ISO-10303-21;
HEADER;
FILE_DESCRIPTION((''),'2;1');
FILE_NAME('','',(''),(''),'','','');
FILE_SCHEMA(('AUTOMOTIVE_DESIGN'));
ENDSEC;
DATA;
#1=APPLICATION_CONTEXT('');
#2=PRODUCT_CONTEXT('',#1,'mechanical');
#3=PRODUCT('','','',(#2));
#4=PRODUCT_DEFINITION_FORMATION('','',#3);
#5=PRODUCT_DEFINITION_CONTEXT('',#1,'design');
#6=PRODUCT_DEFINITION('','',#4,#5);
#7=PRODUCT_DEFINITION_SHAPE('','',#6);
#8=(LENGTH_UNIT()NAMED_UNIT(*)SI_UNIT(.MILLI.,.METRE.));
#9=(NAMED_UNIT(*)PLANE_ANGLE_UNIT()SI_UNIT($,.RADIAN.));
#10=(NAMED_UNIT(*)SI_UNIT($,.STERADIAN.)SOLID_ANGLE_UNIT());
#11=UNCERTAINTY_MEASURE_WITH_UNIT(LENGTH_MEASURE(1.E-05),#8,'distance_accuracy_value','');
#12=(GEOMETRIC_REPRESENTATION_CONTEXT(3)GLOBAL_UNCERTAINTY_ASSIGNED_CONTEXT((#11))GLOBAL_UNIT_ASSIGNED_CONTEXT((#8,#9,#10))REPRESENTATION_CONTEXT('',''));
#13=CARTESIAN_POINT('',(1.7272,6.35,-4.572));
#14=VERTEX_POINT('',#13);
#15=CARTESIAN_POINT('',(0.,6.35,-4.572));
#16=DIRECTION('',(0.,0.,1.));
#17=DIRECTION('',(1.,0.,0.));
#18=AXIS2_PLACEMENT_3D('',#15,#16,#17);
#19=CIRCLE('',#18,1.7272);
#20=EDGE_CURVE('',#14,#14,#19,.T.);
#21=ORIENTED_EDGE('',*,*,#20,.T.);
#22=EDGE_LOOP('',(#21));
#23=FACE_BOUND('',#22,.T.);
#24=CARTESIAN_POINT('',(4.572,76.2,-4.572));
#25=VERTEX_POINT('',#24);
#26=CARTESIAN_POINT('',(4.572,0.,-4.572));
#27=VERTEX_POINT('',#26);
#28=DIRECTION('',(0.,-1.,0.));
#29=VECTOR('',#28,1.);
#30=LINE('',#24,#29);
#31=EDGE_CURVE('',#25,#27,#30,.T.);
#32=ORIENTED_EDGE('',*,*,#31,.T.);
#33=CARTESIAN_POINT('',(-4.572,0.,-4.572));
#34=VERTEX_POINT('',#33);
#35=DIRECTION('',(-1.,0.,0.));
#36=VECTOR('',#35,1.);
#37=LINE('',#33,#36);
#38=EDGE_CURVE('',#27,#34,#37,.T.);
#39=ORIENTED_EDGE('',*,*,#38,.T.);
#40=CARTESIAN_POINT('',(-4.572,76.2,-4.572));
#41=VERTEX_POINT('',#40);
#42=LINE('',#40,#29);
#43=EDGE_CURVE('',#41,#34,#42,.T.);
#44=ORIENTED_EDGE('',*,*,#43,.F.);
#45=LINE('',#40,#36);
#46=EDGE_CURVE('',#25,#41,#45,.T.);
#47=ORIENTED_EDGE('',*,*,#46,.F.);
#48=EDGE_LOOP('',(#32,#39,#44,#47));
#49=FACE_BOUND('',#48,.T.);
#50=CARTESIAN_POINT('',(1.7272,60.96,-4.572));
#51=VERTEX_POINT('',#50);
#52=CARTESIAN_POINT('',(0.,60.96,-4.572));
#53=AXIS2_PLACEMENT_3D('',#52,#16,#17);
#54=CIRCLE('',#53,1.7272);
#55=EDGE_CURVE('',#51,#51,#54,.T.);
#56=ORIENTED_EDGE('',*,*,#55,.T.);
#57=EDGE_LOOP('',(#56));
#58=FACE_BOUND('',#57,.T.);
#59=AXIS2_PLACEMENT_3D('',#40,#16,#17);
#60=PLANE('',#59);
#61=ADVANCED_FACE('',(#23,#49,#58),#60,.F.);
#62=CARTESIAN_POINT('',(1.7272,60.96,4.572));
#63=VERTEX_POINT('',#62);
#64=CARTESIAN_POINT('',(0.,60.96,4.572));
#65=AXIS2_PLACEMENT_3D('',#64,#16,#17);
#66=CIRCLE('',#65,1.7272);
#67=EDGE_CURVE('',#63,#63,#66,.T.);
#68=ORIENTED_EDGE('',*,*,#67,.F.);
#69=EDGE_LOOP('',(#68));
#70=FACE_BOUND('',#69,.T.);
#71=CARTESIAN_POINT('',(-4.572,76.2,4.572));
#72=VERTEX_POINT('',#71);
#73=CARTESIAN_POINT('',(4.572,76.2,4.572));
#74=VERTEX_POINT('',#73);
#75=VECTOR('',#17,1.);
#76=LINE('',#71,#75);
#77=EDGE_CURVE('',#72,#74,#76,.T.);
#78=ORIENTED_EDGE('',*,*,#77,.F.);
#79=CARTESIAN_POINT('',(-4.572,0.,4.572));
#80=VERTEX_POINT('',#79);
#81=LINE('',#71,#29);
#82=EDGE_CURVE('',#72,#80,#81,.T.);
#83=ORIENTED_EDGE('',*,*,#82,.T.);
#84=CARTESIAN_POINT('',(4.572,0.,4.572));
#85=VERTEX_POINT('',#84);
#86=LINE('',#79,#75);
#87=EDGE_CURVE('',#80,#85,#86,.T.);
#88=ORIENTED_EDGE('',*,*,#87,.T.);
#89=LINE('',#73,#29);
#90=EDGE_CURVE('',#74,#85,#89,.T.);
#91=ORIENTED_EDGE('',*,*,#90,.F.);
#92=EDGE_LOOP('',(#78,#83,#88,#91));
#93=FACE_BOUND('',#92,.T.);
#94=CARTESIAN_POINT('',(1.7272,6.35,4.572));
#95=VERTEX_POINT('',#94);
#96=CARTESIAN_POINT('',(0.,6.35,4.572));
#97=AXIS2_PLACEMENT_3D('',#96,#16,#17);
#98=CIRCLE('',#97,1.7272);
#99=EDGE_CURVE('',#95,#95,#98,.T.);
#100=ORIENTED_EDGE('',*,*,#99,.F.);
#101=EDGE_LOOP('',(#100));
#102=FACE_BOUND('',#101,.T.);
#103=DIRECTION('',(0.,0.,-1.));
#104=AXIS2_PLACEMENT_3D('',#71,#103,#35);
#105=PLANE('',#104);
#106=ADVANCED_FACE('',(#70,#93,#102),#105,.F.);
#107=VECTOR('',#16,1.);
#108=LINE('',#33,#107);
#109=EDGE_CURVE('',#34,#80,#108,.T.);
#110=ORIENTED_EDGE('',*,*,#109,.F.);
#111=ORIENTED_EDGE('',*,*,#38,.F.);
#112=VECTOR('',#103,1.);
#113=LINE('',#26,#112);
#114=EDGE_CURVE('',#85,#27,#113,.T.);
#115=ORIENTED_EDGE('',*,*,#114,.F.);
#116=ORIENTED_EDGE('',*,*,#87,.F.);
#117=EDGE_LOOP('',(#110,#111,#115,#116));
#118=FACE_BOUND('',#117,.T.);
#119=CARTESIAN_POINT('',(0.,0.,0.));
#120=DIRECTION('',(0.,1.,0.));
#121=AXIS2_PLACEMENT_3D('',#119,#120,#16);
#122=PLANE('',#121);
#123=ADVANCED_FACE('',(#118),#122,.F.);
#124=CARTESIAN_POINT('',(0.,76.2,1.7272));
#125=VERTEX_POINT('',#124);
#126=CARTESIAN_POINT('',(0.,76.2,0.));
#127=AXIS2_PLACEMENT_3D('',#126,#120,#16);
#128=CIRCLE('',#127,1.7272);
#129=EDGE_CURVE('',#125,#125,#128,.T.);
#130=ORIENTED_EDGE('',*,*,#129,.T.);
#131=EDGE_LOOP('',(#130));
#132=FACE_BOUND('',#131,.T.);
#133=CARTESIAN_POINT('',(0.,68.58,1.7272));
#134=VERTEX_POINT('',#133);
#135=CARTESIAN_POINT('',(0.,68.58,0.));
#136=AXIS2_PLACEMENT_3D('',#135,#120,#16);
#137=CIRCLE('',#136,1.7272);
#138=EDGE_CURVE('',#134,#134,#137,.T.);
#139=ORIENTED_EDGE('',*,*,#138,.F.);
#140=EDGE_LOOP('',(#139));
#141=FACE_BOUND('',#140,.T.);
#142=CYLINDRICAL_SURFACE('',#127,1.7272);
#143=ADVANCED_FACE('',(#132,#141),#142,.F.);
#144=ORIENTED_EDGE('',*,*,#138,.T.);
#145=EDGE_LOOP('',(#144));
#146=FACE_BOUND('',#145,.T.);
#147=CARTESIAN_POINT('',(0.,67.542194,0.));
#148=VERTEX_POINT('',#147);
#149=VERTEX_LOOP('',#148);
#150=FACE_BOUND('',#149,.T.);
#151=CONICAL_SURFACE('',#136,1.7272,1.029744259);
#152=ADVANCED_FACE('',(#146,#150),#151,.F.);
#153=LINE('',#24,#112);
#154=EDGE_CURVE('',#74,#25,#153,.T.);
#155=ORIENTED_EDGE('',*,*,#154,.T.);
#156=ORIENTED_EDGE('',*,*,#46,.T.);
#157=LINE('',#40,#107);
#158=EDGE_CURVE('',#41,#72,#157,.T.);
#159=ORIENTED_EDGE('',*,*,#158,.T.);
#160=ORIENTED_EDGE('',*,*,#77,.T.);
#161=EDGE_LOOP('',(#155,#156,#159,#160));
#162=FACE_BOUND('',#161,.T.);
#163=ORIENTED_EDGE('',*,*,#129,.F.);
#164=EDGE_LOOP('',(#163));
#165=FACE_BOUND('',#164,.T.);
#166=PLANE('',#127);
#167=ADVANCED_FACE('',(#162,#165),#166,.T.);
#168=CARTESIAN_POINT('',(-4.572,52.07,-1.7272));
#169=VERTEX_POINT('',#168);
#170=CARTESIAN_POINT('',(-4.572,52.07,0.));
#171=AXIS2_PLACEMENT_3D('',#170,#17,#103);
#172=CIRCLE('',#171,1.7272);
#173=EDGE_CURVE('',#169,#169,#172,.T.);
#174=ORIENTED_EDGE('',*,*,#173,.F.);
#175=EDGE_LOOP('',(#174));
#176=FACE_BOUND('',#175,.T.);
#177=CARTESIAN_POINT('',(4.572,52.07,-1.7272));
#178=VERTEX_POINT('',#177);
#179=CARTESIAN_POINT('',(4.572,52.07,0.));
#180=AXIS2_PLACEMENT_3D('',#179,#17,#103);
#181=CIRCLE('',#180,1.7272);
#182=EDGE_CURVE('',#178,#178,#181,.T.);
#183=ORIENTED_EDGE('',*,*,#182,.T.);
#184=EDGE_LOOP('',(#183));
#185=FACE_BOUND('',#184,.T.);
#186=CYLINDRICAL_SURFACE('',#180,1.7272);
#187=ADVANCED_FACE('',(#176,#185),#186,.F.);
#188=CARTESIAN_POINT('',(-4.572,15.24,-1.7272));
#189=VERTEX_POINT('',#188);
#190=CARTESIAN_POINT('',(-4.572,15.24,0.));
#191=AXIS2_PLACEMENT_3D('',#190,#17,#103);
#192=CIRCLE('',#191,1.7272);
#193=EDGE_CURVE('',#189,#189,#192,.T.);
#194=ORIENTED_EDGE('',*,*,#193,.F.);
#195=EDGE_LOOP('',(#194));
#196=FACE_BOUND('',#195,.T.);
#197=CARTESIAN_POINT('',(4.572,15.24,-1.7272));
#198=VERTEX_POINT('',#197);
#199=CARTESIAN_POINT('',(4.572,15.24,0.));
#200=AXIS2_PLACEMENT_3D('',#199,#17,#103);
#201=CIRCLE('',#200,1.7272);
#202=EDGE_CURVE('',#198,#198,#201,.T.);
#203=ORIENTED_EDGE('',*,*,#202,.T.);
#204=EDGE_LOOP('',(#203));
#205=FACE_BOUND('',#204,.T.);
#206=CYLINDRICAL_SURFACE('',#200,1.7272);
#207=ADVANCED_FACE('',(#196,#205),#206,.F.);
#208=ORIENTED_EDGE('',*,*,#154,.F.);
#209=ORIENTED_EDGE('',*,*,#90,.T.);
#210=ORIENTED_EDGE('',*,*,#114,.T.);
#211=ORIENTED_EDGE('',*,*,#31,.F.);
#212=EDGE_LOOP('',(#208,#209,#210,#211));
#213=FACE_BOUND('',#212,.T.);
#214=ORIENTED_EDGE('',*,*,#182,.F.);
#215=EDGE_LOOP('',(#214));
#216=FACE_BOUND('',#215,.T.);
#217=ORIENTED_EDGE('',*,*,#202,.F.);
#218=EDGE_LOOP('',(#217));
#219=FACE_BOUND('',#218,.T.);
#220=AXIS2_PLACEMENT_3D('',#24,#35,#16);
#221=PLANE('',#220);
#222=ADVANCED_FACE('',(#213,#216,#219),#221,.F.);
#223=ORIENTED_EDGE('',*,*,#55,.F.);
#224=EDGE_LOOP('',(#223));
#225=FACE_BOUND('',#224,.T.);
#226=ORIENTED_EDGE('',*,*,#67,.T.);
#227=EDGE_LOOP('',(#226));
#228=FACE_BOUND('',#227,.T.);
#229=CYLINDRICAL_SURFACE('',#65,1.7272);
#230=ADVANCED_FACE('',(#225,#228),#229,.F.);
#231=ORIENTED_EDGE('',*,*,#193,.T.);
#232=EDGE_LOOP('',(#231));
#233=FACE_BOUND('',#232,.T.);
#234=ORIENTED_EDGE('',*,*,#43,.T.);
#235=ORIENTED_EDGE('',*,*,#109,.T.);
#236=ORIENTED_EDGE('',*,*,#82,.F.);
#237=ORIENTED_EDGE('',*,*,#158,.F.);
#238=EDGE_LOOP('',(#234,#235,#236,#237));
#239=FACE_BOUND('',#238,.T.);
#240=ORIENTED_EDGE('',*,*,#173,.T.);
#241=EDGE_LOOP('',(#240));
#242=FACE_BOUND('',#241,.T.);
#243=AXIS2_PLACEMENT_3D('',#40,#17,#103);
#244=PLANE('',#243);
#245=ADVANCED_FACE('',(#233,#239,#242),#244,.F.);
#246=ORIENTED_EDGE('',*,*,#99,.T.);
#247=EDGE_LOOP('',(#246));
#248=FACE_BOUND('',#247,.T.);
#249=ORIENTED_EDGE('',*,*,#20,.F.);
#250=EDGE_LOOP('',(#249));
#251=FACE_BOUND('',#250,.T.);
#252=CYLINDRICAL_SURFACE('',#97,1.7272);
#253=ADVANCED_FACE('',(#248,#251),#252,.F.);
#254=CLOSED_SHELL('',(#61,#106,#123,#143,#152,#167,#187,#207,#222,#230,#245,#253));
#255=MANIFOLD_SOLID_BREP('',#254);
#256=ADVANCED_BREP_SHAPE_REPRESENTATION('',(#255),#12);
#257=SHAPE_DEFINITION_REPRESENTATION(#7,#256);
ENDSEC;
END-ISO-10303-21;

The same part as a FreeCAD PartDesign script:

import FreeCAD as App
import Part
import Sketcher
Q = App.Units.Quantity


def add_polygon(sketch, points):
    """Adds a closed chain of lines whose ends are joined by coincident constraints."""
    first, n = sketch.GeometryCount, len(points)
    for a, b in zip(points, points[1:] + points[:1]):
        sketch.addGeometry(Part.LineSegment(App.Vector(*a, 0), App.Vector(*b, 0)), False)
    for i in range(n):
        sketch.addConstraint(Sketcher.Constraint("Coincident", first + i, 2, first + (i + 1) % n, 1))

doc = App.newDocument("Part")
params = doc.addObject("Spreadsheet::Sheet", "Params")
for row, (alias, value) in enumerate([
    ("sketch1_width", "0.36 in"),
    ("pad1_length", "3 in"),
    ("sketch2_diameter", "0.136 in"),
    ("hole_diameter", "0.136 in"),
    ("sketch3_diameter", "0.136 in"),
    ("hole2_diameter", "0.136 in"),
    ("sketch4_diameter", "0.136 in"),
    ("hole3_diameter", "0.136 in"),
    ("hole3_depth", "0.3 in"),
], start=1):
    params.set(f"A{row}", alias)
    params.set(f"B{row}", "=" + value)
    params.setAlias(f"B{row}", alias)

body = doc.addObject("PartDesign::Body", "Body")

# Sketch on XZ plane
sketch1 = doc.addObject("Sketcher::SketchObject", "Sketch")
body.addObject(sketch1)
sketch1.AttachmentSupport = (doc.XZ_Plane, [""])
sketch1.MapMode = "FlatFace"
add_polygon(sketch1, [(-5, -5), (-5, 5), (5, 5), (5, -5)])  # lines 0-3
sketch1.addConstraint(Sketcher.Constraint("Vertical", 0))
sketch1.addConstraint(Sketcher.Constraint("Horizontal", 1))
sketch1.addConstraint(Sketcher.Constraint("Vertical", 2))
sketch1.addConstraint(Sketcher.Constraint("Horizontal", 3))
sketch1.addConstraint(Sketcher.Constraint("Symmetric", 0, 2, 2, 2, -1, 1))
sketch1.addConstraint(Sketcher.Constraint("Equal", 3, 0))
sketch1.addConstraint(Sketcher.Constraint("DistanceX", 1, 1, 1, 2, Q("0.36 in")))
sketch1.setExpression("Constraints[10]", "Params.sketch1_width")
pad1 = doc.addObject("PartDesign::Pad", "Pad")
body.addObject(pad1)
pad1.Profile = sketch1
pad1.setExpression("Length", "Params.pad1_length")
pad1.Reversed = True

# Sketch on XY plane
sketch2 = doc.addObject("Sketcher::SketchObject", "Sketch001")
body.addObject(sketch2)
sketch2.AttachmentSupport = (doc.XY_Plane, [""])
sketch2.MapMode = "FlatFace"
sketch2.AttachmentOffset = App.Placement(App.Vector(0, 0, 0.18 * 25.4), App.Rotation())
sketch2.addGeometry(Part.Circle(App.Vector(0, 61, 0), App.Vector(0, 0, 1), 1.7), False)
sketch2.addGeometry(Part.Circle(App.Vector(0, 6.3, 0), App.Vector(0, 0, 1), 1.7), False)
sketch2.addConstraint(Sketcher.Constraint("Equal", 0, 1))
sketch2.addConstraint(Sketcher.Constraint("PointOnObject", 0, 3, -2))
sketch2.addConstraint(Sketcher.Constraint("PointOnObject", 1, 3, -2))
sketch2.addConstraint(Sketcher.Constraint("Diameter", 0, Q("0.136 in")))
sketch2.addConstraint(Sketcher.Constraint("DistanceY", -1, 1, 0, 3, Q("2.4 in")))
sketch2.addConstraint(Sketcher.Constraint("DistanceY", -1, 1, 1, 3, Q("0.25 in")))
sketch2.setExpression("Constraints[3]", "Params.sketch2_diameter")
doc.recompute()
hole = doc.addObject("PartDesign::Hole", "Hole")
body.addObject(hole)
hole.Profile = sketch2
hole.ThreadType = "None"
hole.setExpression("Diameter", "Params.hole_diameter")
hole.DepthType = "ThroughAll"

# Sketch on YZ plane
sketch3 = doc.addObject("Sketcher::SketchObject", "Sketch002")
body.addObject(sketch3)
sketch3.AttachmentSupport = (doc.YZ_Plane, [""])
sketch3.MapMode = "FlatFace"
sketch3.AttachmentOffset = App.Placement(App.Vector(0, 0, 0.18 * 25.4), App.Rotation())
sketch3.addGeometry(Part.Circle(App.Vector(52.1, 0, 0), App.Vector(0, 0, 1), 1.7), False)
sketch3.addGeometry(Part.Circle(App.Vector(15.2, 0, 0), App.Vector(0, 0, 1), 1.7), False)
sketch3.addConstraint(Sketcher.Constraint("Equal", 0, 1))
sketch3.addConstraint(Sketcher.Constraint("PointOnObject", 0, 3, -1))
sketch3.addConstraint(Sketcher.Constraint("PointOnObject", 1, 3, -1))
sketch3.addConstraint(Sketcher.Constraint("Diameter", 0, Q("0.136 in")))
sketch3.addConstraint(Sketcher.Constraint("DistanceX", -1, 1, 1, 3, Q("0.6 in")))
sketch3.addConstraint(Sketcher.Constraint("DistanceX", -1, 1, 0, 3, Q("2.05 in")))
sketch3.setExpression("Constraints[3]", "Params.sketch3_diameter")
doc.recompute()
hole2 = doc.addObject("PartDesign::Hole", "Hole001")
body.addObject(hole2)
hole2.Profile = sketch3
hole2.ThreadType = "None"
hole2.setExpression("Diameter", "Params.hole2_diameter")
hole2.DepthType = "ThroughAll"

# Sketch on XZ plane
sketch4 = doc.addObject("Sketcher::SketchObject", "Sketch003")
body.addObject(sketch4)
sketch4.AttachmentSupport = (doc.XZ_Plane, [""])
sketch4.MapMode = "FlatFace"
sketch4.AttachmentOffset = App.Placement(App.Vector(0, 0, -3 * 25.4), App.Rotation())
sketch4.addGeometry(Part.Circle(App.Vector(0, 0, 0), App.Vector(0, 0, 1), 1.7), False)
sketch4.addConstraint(Sketcher.Constraint("Coincident", 0, 3, -1, 1))
sketch4.addConstraint(Sketcher.Constraint("Diameter", 0, Q("0.136 in")))
sketch4.setExpression("Constraints[1]", "Params.sketch4_diameter")
doc.recompute()
hole3 = doc.addObject("PartDesign::Hole", "Hole002")
body.addObject(hole3)
hole3.Profile = sketch4
hole3.ThreadType = "None"
hole3.setExpression("Diameter", "Params.hole3_diameter")
hole3.DepthType = "Dimension"
hole3.setExpression("Depth", "Params.hole3_depth")
hole3.DrillPoint = "Angled"
hole3.DrillPointAngle = 118
hole3.Reversed = True

doc.recompute()
